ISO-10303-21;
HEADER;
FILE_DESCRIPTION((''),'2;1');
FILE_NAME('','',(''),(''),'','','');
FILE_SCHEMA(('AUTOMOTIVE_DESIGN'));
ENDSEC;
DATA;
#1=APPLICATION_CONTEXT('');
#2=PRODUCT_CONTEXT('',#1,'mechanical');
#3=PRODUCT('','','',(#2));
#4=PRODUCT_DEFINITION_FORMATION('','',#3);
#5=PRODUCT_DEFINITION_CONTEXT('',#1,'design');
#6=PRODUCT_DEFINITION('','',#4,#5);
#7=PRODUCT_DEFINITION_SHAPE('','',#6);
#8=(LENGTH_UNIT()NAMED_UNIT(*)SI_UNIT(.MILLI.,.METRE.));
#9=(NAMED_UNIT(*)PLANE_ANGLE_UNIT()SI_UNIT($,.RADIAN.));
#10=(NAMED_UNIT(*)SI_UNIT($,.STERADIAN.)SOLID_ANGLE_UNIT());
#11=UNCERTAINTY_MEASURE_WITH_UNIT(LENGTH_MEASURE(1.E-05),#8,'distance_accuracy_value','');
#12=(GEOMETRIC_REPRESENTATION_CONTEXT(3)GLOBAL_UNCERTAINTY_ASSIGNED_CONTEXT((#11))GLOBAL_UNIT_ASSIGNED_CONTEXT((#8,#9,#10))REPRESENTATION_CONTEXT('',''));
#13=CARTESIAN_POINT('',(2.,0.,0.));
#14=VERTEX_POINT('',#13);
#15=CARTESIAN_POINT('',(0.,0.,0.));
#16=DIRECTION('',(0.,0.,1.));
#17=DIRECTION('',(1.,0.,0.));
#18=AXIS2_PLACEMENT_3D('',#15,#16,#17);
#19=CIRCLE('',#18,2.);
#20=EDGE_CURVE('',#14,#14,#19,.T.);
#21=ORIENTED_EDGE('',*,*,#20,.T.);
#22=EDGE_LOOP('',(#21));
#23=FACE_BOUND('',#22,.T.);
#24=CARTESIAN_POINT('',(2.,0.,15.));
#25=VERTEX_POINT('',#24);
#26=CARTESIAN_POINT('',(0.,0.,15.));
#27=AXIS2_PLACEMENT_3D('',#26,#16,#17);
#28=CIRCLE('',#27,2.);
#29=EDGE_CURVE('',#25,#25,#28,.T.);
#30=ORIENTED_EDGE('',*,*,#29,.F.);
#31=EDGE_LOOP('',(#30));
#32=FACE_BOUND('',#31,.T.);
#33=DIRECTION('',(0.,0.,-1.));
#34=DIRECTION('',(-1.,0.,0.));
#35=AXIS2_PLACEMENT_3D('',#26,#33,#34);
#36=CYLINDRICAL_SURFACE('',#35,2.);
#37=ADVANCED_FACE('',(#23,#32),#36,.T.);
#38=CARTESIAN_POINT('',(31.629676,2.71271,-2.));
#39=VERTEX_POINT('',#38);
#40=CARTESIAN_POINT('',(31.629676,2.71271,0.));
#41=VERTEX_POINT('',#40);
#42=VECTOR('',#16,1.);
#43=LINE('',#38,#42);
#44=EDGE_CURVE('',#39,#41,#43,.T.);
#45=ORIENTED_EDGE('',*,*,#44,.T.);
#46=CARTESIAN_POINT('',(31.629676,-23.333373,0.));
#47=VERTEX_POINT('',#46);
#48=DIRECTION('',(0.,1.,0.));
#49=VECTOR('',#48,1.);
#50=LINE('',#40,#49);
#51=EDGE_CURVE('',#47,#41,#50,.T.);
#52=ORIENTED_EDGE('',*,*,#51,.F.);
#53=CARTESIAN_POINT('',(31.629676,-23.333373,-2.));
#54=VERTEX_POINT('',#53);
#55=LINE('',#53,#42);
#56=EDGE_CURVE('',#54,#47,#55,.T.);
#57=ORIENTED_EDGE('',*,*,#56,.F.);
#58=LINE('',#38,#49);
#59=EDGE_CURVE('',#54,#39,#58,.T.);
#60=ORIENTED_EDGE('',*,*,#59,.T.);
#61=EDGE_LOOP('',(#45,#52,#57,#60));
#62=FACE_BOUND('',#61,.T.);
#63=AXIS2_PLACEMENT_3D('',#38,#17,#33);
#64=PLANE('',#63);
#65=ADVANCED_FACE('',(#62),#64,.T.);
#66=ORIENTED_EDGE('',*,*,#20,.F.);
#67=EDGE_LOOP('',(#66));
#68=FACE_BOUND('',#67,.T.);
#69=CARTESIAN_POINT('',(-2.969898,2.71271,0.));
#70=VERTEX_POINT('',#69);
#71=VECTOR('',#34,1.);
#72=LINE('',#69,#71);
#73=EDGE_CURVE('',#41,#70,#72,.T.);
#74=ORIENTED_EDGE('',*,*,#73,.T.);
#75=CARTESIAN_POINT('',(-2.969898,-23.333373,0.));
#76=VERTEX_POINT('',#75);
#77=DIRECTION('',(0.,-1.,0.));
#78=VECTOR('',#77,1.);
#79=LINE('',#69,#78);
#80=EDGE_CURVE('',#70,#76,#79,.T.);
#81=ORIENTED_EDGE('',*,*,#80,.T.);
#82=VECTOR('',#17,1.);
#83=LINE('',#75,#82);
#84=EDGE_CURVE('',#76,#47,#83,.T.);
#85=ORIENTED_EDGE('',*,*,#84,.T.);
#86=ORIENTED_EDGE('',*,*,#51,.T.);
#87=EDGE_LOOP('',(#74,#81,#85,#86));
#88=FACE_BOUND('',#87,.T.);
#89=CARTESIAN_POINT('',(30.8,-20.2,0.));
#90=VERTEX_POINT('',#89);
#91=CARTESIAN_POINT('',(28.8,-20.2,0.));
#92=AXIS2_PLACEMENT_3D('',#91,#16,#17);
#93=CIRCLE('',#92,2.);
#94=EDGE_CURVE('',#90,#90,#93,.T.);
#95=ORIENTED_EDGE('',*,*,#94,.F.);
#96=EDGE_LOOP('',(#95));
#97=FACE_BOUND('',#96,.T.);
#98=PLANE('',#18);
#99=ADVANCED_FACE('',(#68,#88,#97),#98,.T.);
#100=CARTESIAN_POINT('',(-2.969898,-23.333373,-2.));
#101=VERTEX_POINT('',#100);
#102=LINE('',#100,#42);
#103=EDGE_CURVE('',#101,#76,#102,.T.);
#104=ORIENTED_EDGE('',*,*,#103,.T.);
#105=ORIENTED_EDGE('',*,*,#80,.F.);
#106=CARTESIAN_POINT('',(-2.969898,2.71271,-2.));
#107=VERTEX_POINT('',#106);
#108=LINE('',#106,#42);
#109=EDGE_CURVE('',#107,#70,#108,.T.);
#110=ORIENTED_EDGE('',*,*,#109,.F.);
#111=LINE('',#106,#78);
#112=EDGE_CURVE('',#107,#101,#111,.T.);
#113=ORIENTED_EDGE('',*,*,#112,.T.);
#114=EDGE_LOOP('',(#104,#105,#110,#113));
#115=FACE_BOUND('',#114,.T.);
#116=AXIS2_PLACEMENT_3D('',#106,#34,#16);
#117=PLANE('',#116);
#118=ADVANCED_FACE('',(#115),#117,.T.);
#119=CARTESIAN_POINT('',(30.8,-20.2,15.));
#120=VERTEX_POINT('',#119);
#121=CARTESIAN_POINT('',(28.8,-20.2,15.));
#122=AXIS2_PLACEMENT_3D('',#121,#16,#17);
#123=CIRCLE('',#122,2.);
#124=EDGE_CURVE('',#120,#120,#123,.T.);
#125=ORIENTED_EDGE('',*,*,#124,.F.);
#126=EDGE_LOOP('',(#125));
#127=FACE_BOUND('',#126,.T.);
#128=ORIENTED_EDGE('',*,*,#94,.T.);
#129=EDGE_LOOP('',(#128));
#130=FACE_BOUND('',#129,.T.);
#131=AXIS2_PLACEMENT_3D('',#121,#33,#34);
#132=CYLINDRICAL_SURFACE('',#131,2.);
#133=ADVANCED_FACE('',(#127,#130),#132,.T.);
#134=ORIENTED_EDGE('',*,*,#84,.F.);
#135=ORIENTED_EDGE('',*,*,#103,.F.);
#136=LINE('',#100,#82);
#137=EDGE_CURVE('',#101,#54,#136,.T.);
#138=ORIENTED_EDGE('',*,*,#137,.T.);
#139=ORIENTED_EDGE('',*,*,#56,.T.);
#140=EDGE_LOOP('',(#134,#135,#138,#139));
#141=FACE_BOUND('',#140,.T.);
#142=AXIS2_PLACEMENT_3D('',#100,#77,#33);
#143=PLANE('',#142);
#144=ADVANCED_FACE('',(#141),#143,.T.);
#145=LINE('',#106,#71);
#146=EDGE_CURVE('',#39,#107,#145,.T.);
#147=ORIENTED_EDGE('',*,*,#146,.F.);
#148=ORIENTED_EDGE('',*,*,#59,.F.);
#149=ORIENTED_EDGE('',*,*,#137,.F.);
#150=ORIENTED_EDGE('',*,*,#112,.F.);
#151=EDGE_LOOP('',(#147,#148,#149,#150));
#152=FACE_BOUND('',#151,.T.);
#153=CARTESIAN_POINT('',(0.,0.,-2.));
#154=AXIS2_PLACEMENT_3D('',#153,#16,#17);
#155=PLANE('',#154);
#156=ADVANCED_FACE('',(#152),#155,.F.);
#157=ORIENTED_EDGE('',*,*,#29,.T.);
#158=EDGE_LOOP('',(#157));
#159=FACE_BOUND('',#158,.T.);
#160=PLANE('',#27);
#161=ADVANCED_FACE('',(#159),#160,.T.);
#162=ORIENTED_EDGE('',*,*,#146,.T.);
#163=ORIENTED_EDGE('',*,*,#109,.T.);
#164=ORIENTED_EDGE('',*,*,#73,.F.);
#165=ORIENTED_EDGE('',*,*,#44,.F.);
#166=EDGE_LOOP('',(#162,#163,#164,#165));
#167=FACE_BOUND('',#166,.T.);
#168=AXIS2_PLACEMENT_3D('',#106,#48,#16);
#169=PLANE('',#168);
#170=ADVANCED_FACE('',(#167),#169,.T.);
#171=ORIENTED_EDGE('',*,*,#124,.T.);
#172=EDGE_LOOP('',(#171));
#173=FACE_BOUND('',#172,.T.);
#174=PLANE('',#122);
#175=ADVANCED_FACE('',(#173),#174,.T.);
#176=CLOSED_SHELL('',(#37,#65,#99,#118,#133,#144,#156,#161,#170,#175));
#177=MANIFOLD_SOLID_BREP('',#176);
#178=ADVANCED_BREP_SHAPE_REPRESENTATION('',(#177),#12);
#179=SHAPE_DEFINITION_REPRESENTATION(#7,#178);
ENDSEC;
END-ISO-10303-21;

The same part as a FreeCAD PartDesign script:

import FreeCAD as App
import Part
import Sketcher
from FreeCAD import Vector

doc = App.newDocument("Part")
body = doc.addObject("PartDesign::Body", "Body")

sketch1 = body.newObject("Sketcher::SketchObject", "Sketch")
sketch1.AttachmentSupport = (doc.getObject("XY_Plane"), [""])
sketch1.MapMode = "FlatFace"
sketch1.addGeometry(Part.Circle(Vector(0, 0, 0), Vector(0, 0, 1), 2), False)
sketch1.addConstraint([
    Sketcher.Constraint("Coincident", 0, 3, -1, 1),
    Sketcher.Constraint("Diameter", 0, 4.0),
])
pad1 = body.newObject("PartDesign::Pad", "Pad")
pad1.Profile = sketch1
pad1.Length = 15
body2 = doc.addObject("PartDesign::Body", "Body001")

sketch2 = body2.newObject("Sketcher::SketchObject", "Sketch001")
sketch2.AttachmentSupport = (doc.getObject("XY_Plane001"), [""])
sketch2.MapMode = "FlatFace"
sketch2.addGeometry(Part.Circle(Vector(28.8, -20.2, 0), Vector(0, 0, 1), 2), False)
sketch2.addConstraint([
    Sketcher.Constraint("Diameter", 0, 4.0),
    Sketcher.Constraint("DistanceX", -1, 1, 0, 3, 28.8),
    Sketcher.Constraint("DistanceY", 0, 3, -1, 1, 20.2),
])
pad2 = body2.newObject("PartDesign::Pad", "Pad001")
pad2.Profile = sketch2
pad2.Length = 15
body.AllowCompound = True
doc.recompute()

boolean = body.newObject("PartDesign::Boolean", "Boolean")
boolean.Type = "Fuse"
boolean.addObjects([body2])

sketch3 = body.newObject("Sketcher::SketchObject", "Sketch002")
sketch3.AttachmentSupport = (doc.getObject("XY_Plane"), [""])
sketch3.MapMode = "FlatFace"
sketch3.addGeometry([
    Part.LineSegment(Vector(-2.969898, 2.71271, 0), Vector(-2.969898, -23.333373, 0)),
    Part.LineSegment(Vector(-2.969898, -23.333373, 0), Vector(31.629676, -23.333373, 0)),
    Part.LineSegment(Vector(31.629676, -23.333373, 0), Vector(31.629676, 2.71271, 0)),
    Part.LineSegment(Vector(31.629676, 2.71271, 0), Vector(-2.969898, 2.71271, 0)),
], False)
sketch3.addConstraint([
    Sketcher.Constraint("Coincident", 0, 2, 1, 1),
    Sketcher.Constraint("Coincident", 1, 2, 2, 1),
    Sketcher.Constraint("Coincident", 2, 2, 3, 1),
    Sketcher.Constraint("Coincident", 3, 2, 0, 1),
    Sketcher.Constraint("Vertical", 0),
    Sketcher.Constraint("Horizontal", 1),
    Sketcher.Constraint("Vertical", 2),
    Sketcher.Constraint("Horizontal", 3),
    Sketcher.Constraint("DistanceX", 1, 1, 1, 2, 34.599574),
    Sketcher.Constraint("DistanceY", 0, 2, 0, 1, 26.046083),
    Sketcher.Constraint("DistanceY", -1, 1, 2, 2, 2.71271),
    Sketcher.Constraint("DistanceX", 0, 2, -1, 1, 2.969898),
])
pad3 = body.newObject("PartDesign::Pad", "Pad002")
pad3.Profile = sketch3
pad3.Length = 2
pad3.Reversed = True

doc.recompute()
